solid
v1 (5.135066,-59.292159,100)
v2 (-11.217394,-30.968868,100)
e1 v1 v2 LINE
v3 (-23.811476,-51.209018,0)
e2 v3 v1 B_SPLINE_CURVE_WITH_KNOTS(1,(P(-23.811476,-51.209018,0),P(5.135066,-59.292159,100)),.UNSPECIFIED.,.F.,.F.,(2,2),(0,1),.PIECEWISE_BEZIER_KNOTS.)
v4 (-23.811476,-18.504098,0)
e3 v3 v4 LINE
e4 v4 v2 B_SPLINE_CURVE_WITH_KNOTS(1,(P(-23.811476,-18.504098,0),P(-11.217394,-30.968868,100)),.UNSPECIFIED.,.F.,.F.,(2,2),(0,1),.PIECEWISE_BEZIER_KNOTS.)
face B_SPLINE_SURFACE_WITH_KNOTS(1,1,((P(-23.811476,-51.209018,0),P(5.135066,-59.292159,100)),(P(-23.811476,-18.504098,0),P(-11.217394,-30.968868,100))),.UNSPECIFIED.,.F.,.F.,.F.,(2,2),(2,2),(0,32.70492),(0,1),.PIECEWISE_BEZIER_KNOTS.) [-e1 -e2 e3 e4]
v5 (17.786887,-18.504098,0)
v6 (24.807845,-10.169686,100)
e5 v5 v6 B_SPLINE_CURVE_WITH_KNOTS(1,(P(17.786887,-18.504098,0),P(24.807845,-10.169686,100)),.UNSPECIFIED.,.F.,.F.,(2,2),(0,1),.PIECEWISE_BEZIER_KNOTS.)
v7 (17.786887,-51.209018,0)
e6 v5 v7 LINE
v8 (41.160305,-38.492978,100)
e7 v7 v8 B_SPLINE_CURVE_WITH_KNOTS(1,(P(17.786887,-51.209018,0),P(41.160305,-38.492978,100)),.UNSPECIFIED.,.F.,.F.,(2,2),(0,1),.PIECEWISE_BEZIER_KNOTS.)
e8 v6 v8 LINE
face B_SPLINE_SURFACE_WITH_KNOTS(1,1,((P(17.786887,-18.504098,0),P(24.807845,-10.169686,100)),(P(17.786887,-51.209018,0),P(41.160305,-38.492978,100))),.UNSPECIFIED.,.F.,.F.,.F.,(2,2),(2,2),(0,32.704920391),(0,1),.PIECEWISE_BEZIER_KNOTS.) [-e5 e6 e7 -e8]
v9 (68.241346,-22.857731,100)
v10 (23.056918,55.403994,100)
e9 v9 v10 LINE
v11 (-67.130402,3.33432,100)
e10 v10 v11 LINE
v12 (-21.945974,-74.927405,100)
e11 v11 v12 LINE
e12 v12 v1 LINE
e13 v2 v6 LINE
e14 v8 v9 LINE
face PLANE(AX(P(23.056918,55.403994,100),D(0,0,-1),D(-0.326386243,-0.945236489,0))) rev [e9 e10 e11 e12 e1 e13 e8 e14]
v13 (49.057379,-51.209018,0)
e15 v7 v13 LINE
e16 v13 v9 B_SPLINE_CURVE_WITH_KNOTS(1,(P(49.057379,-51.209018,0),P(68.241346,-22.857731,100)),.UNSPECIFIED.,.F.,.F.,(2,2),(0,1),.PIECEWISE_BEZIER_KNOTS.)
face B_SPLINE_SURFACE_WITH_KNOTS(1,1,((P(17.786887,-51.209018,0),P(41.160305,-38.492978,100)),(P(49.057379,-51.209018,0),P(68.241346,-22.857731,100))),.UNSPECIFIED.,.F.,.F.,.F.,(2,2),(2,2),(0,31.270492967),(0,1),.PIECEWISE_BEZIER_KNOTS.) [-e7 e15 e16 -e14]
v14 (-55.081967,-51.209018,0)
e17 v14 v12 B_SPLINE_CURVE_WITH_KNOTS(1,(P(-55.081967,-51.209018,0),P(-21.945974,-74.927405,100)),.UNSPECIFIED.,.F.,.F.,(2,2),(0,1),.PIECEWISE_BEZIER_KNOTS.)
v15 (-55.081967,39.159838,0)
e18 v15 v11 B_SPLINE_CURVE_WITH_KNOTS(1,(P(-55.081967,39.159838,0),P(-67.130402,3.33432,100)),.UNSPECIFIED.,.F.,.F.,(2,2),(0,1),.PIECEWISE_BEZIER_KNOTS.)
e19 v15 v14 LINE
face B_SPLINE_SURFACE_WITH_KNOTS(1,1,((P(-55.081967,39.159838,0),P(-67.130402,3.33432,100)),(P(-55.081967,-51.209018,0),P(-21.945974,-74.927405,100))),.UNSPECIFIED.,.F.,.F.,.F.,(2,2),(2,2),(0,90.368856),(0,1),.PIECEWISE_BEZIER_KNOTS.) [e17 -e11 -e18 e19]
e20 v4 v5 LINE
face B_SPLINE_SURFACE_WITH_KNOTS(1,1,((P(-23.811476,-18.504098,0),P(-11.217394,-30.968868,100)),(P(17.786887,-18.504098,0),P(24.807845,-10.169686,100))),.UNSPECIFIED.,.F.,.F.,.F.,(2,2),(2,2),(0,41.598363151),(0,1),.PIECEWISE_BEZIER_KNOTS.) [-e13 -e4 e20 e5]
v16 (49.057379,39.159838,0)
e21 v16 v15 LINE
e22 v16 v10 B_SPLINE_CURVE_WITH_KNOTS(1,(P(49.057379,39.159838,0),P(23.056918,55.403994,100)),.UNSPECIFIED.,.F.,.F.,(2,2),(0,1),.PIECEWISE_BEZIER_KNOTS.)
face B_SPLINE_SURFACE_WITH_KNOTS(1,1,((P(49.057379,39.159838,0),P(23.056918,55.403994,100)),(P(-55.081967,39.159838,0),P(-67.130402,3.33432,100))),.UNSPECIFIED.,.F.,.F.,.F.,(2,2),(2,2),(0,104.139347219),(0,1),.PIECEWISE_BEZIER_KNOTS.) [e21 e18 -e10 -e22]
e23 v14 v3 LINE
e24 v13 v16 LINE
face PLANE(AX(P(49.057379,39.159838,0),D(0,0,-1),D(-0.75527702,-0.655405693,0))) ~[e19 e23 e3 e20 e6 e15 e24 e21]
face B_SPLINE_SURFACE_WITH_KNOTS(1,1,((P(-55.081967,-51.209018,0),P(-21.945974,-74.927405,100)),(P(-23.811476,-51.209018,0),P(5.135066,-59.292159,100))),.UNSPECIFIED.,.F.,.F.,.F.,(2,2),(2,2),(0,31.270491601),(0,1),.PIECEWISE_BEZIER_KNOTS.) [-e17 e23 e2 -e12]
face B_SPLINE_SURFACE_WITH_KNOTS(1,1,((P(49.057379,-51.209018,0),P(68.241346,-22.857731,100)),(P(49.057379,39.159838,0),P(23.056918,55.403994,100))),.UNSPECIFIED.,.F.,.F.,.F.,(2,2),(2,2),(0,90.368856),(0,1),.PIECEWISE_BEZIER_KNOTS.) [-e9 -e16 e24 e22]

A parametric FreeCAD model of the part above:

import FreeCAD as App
import Part
import Sketcher
Q = App.Units.Quantity

doc = App.newDocument("Part")
body = doc.addObject("PartDesign::Body", "Body")

# Sketch on XY plane
sketch1 = doc.addObject("Sketcher::SketchObject", "Sketch")
body.addObject(sketch1)
sketch1.AttachmentSupport = (doc.XY_Plane, [""])
sketch1.MapMode = "FlatFace"
sketch1.addGeometry([
    Part.LineSegment(App.Vector(49.057379, 39.159838, 0), App.Vector(-55.081967, 39.159838, 0)),  # 0
    Part.LineSegment(App.Vector(-55.081967, 39.159838, 0), App.Vector(-55.081967, -51.209018, 0)),  # 1
    Part.LineSegment(App.Vector(-55.081967, -51.209018, 0), App.Vector(-23.811476, -51.209018, 0)),  # 2
    Part.LineSegment(App.Vector(-23.811476, -51.209018, 0), App.Vector(-23.811476, -18.504098, 0)),  # 3
    Part.LineSegment(App.Vector(-23.811476, -18.504098, 0), App.Vector(17.786887, -18.504098, 0)),  # 4
    Part.LineSegment(App.Vector(17.786887, -18.504098, 0), App.Vector(17.786887, -51.209018, 0)),  # 5
    Part.LineSegment(App.Vector(17.786887, -51.209018, 0), App.Vector(49.057379, -51.209018, 0)),  # 6
    Part.LineSegment(App.Vector(49.057379, -51.209018, 0), App.Vector(49.057379, 39.159838, 0)),  # 7
], False)
sketch1.addConstraint([
    Sketcher.Constraint("Coincident", 0, 2, 1, 1),
    Sketcher.Constraint("Coincident", 1, 2, 2, 1),
    Sketcher.Constraint("Coincident", 2, 2, 3, 1),
    Sketcher.Constraint("Coincident", 3, 2, 4, 1),
    Sketcher.Constraint("Coincident", 4, 2, 5, 1),
    Sketcher.Constraint("Coincident", 5, 2, 6, 1),
    Sketcher.Constraint("Coincident", 6, 2, 7, 1),
    Sketcher.Constraint("Coincident", 7, 2, 0, 1),
    Sketcher.Constraint("Horizontal", 0),
    Sketcher.Constraint("Vertical", 1),
    Sketcher.Constraint("Horizontal", 2),
    Sketcher.Constraint("Vertical", 3),
    Sketcher.Constraint("Horizontal", 4),
    Sketcher.Constraint("Vertical", 5),
    Sketcher.Constraint("Horizontal", 6),
    Sketcher.Constraint("Vertical", 7),
    Sketcher.Constraint("Horizontal", 2, 2, 5, 2),
    Sketcher.Constraint("Equal", 2, 6),
    Sketcher.Constraint("DistanceX", 2, 1, 2, 2, Q("31.270491 mm")),
    Sketcher.Constraint("DistanceY", 3, 1, 3, 2, Q("32.70492 mm")),
    Sketcher.Constraint("DistanceX", 0, 2, 0, 1, Q("104.139346 mm")),
    Sketcher.Constraint("DistanceY", 1, 2, 1, 1, Q("90.368856 mm")),
    Sketcher.Constraint("DistanceX", -1, 1, 6, 2, Q("49.057379 mm")),
    Sketcher.Constraint("DistanceY", -1, 1, 0, 2, Q("39.159838 mm")),
])

# Sketch on XY plane
sketch2 = doc.addObject("Sketcher::SketchObject", "Sketch001")
body.addObject(sketch2)
sketch2.AttachmentSupport = (doc.XY_Plane, [""])
sketch2.MapMode = "FlatFace"
sketch2.AttachmentOffset = App.Placement(App.Vector(0, 0, 100), App.Rotation())
sketch2.addGeometry([
    Part.LineSegment(App.Vector(23.056918, 55.403994, 0), App.Vector(-67.130402, 3.33432, 0)),  # 0
    Part.LineSegment(App.Vector(-67.130402, 3.33432, 0), App.Vector(-21.945974, -74.927405, 0)),  # 1
    Part.LineSegment(App.Vector(-21.945974, -74.927405, 0), App.Vector(5.135066, -59.292159, 0)),  # 2
    Part.LineSegment(App.Vector(5.135066, -59.292159, 0), App.Vector(-11.217394, -30.968868, 0)),  # 3
    Part.LineSegment(App.Vector(-11.217394, -30.968868, 0), App.Vector(24.807845, -10.169686, 0)),  # 4
    Part.LineSegment(App.Vector(24.807845, -10.169686, 0), App.Vector(41.160305, -38.492978, 0)),  # 5
    Part.LineSegment(App.Vector(41.160305, -38.492978, 0), App.Vector(68.241346, -22.857731, 0)),  # 6
    Part.LineSegment(App.Vector(68.241346, -22.857731, 0), App.Vector(23.056918, 55.403994, 0)),  # 7
], False)
sketch2.addConstraint([
    Sketcher.Constraint("Coincident", 0, 2, 1, 1),
    Sketcher.Constraint("Coincident", 1, 2, 2, 1),
    Sketcher.Constraint("Coincident", 2, 2, 3, 1),
    Sketcher.Constraint("Coincident", 3, 2, 4, 1),
    Sketcher.Constraint("Coincident", 4, 2, 5, 1),
    Sketcher.Constraint("Coincident", 5, 2, 6, 1),
    Sketcher.Constraint("Coincident", 6, 2, 7, 1),
    Sketcher.Constraint("Coincident", 7, 2, 0, 1),
    Sketcher.Constraint("Perpendicular", 0, 1),
    Sketcher.Constraint("Perpendicular", 1, 2),
    Sketcher.Constraint("Perpendicular", 2, 3),
    Sketcher.Constraint("Perpendicular", 3, 4),
    Sketcher.Constraint("Perpendicular", 4, 5),
    Sketcher.Constraint("Perpendicular", 5, 6),
    Sketcher.Constraint("Perpendicular", 6, 7),
    Sketcher.Constraint("Equal", 3, 5),
    Sketcher.Constraint("Equal", 2, 6),
    Sketcher.Constraint("Angle", 0, Q("-150 deg")),
    Sketcher.Constraint("DistanceX", 3, 2, 5, 2, Q("52.377699 mm")),
    Sketcher.Constraint("DistanceX", 4, 2, 6, 2, Q("43.433501 mm")),
    Sketcher.Constraint("Distance", 2, Q("31.270492 mm")),
    Sketcher.Constraint("DistanceY", -1, 1, 0, 2, Q("3.33432 mm")),
    Sketcher.Constraint("DistanceY", 2, 2, -1, 1, Q("59.292159 mm")),
    Sketcher.Constraint("DistanceX", 0, 2, -1, 1, Q("67.130402 mm")),
])

additiveloft = doc.addObject("PartDesign::AdditiveLoft", "AdditiveLoft")
body.addObject(additiveloft)
additiveloft.Profile = sketch1
additiveloft.Sections = [sketch2]

doc.recompute()
